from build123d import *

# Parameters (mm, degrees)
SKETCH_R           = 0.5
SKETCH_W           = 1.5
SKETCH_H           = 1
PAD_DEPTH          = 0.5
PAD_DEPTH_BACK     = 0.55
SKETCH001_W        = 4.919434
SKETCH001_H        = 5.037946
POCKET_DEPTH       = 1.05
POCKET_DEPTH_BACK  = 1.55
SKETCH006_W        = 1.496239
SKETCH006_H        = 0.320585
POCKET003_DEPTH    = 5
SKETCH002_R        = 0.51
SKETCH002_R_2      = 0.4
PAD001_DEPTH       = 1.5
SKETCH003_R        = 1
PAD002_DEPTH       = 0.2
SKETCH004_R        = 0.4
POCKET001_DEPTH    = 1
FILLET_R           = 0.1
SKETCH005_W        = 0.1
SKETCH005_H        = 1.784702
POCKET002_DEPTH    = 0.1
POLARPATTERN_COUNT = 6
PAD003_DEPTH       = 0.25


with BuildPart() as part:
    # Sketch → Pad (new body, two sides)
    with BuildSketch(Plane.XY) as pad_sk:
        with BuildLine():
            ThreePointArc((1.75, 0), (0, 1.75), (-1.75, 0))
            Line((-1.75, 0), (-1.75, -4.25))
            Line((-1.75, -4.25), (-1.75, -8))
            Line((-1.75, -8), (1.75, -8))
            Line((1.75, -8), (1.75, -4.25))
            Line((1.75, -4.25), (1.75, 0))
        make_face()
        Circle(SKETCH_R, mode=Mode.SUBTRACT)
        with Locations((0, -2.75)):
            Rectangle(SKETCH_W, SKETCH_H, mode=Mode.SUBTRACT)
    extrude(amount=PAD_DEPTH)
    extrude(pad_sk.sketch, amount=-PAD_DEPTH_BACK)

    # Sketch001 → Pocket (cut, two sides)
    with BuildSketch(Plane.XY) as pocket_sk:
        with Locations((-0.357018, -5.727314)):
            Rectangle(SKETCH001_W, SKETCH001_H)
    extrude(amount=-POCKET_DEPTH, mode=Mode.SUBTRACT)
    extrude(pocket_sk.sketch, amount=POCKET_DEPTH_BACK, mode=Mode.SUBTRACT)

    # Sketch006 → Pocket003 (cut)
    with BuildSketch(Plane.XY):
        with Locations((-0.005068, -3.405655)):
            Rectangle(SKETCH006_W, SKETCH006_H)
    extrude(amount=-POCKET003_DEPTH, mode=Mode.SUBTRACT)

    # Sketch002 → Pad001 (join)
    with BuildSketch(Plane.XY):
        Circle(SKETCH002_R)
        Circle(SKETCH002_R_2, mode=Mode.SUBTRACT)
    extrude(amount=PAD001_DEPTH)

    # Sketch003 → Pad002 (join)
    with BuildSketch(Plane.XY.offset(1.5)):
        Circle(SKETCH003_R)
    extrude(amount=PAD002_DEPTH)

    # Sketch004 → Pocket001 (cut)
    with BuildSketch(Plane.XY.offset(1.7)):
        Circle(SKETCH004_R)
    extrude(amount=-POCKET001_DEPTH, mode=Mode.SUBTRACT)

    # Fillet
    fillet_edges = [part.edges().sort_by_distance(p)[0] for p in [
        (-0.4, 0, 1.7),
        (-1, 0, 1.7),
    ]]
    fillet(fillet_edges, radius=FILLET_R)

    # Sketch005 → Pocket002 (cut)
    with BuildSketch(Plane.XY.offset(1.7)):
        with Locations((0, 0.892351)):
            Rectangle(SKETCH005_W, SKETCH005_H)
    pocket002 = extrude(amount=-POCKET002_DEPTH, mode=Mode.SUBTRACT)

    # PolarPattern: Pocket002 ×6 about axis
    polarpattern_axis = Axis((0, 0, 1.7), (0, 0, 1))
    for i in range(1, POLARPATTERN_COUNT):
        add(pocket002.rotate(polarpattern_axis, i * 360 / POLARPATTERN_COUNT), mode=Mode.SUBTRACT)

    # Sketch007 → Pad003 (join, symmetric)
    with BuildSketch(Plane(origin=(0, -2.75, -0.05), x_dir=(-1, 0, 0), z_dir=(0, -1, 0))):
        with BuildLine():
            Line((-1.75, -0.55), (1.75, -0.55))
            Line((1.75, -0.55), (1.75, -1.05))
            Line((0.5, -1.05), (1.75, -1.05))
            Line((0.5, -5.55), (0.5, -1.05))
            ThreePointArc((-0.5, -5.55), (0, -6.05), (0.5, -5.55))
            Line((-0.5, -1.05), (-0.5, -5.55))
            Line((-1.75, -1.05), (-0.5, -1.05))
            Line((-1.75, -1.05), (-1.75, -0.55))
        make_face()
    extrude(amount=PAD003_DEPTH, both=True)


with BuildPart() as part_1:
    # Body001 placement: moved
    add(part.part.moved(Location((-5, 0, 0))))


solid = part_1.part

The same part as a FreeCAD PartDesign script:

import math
import FreeCAD as App
import Part
import Sketcher
Q = App.Units.Quantity


def edges_at(feature, points):
    """Names of the edges that pass closest to the given points."""
    edges = feature.Shape.Edges
    near = lambda p: min(range(len(edges)), key=lambda i: edges[i].distToShape(Part.Vertex(*p))[0])
    return sorted({f"Edge{near(p) + 1}" for p in points})


def add_polygon(sketch, points):
    """Adds a closed chain of lines whose ends are joined by coincident constraints."""
    first, n = sketch.GeometryCount, len(points)
    for a, b in zip(points, points[1:] + points[:1]):
        sketch.addGeometry(Part.LineSegment(App.Vector(*a, 0), App.Vector(*b, 0)), False)
    for i in range(n):
        sketch.addConstraint(Sketcher.Constraint("Coincident", first + i, 2, first + (i + 1) % n, 1))

doc = App.newDocument("Part")
body = doc.addObject("PartDesign::Body", "Body")

# Sketch on XY plane
sketch1 = body.newObject("Sketcher::SketchObject", "Sketch")
sketch1.AttachmentSupport = (doc.getObject("XY_Plane"), [""])
sketch1.MapMode = "FlatFace"
sketch1.addGeometry(Part.ArcOfCircle(Part.Circle(App.Vector(0, 0, 0), App.Vector(0, 0, 1), 1.8), math.radians(0), math.radians(180)), False)  # 0
sketch1.addGeometry(Part.LineSegment(App.Vector(-1.8, 0, 0), App.Vector(-1.8, -8, 0)), False)  # 1
sketch1.addGeometry(Part.LineSegment(App.Vector(-1.8, -8, 0), App.Vector(1.8, -8, 0)), False)  # 2
sketch1.addGeometry(Part.LineSegment(App.Vector(1.8, -8, 0), App.Vector(1.8, 0, 0)), False)  # 3
add_polygon(sketch1, [(0.8, -3.2), (-0.8, -3.2), (-0.8, -2.2), (0.8, -2.2)])  # lines 4-7
sketch1.addGeometry(Part.Circle(App.Vector(0, 0, 0), App.Vector(0, 0, 1), 0.5), False)  # 8
sketch1.addConstraint([
    Sketcher.Constraint("Tangent", 0, 2, 1, 1),
    Sketcher.Constraint("Coincident", 1, 2, 2, 1),
    Sketcher.Constraint("Coincident", 2, 2, 3, 1),
    Sketcher.Constraint("Tangent", 3, 2, 0, 1),
    Sketcher.Constraint("Vertical", 1),
    Sketcher.Constraint("Horizontal", 2),
    Sketcher.Constraint("Vertical", 3),
    Sketcher.Constraint("Horizontal", 4),
    Sketcher.Constraint("Vertical", 5),
    Sketcher.Constraint("Horizontal", 6),
    Sketcher.Constraint("Vertical", 7),
    Sketcher.Constraint("Coincident", 0, 3, -1, 1),
    Sketcher.Constraint("Coincident", 8, 3, -1, 1),
    Sketcher.Constraint("Diameter", 8, Q("1 mm")),
    Sketcher.Constraint("DistanceY", 1, 2, 1, 1, Q("8 mm")),
    Sketcher.Constraint("DistanceY", 5, 1, 5, 2, Q("1 mm")),
    Sketcher.Constraint("Radius", 0, Q("1.75 mm")),
    Sketcher.Constraint("DistanceX", 4, 2, 4, 1, Q("1.5 mm")),
    Sketcher.Constraint("DistanceX", 0, 2, 4, 2, Q("1 mm")),
    Sketcher.Constraint("DistanceY", 4, 2, -1, 1, Q("3.25 mm")),
])
pad1 = body.newObject("PartDesign::Pad", "Pad")
pad1.Profile = sketch1
pad1.Type = "TwoLengths"
pad1.Length = 0.5
pad1.Length2 = 0.55

# Sketch on XY plane
sketch2 = body.newObject("Sketcher::SketchObject", "Sketch001")
sketch2.AttachmentSupport = (doc.getObject("XY_Plane"), [""])
sketch2.MapMode = "FlatFace"
add_polygon(sketch2, [(-2.8, -3.2), (-2.8, -8.2), (2.1, -8.2), (2.1, -3.2)])  # lines 0-3
sketch2.addConstraint([
    Sketcher.Constraint("Vertical", 0),
    Sketcher.Constraint("Horizontal", 1),
    Sketcher.Constraint("Vertical", 2),
    Sketcher.Constraint("Horizontal", 3),
    Sketcher.Constraint("DistanceX", -1, 1, 1, 2, Q("2.102699 mm")),
    Sketcher.Constraint("DistanceX", 1, 1, 1, 2, Q("4.919434 mm")),
    Sketcher.Constraint("DistanceY", 0, 2, 0, 1, Q("5.037946 mm")),
    Sketcher.Constraint("DistanceY", 2, 2, -1, 1, Q("3.208341 mm")),
])
pocket1 = body.newObject("PartDesign::Pocket", "Pocket")
pocket1.Profile = sketch2
pocket1.Type = "ThroughAll"
pocket1.Midplane = True

# Sketch on XY plane
sketch3 = body.newObject("Sketcher::SketchObject", "Sketch002")
sketch3.AttachmentSupport = (doc.getObject("XY_Plane"), [""])
sketch3.MapMode = "FlatFace"
add_polygon(sketch3, [(-0.75, -3.25), (-0.75, -3.57), (0.74, -3.57), (0.74, -3.25)])  # lines 0-3
sketch3.addConstraint([
    Sketcher.Constraint("Vertical", 0),
    Sketcher.Constraint("Horizontal", 1),
    Sketcher.Constraint("Vertical", 2),
    Sketcher.Constraint("Horizontal", 3),
    Sketcher.Constraint("DistanceX", 1, 1, 1, 2, Q("1.496239 mm")),
    Sketcher.Constraint("DistanceY", 0, 2, 0, 1, Q("0.320585 mm")),
    Sketcher.Constraint("DistanceX", -1, 1, 1, 2, Q("0.743051 mm")),
    Sketcher.Constraint("DistanceY", 0, 2, -1, 1, Q("3.565948 mm")),
])
pocket2 = body.newObject("PartDesign::Pocket", "Pocket001")
pocket2.Profile = sketch3
pocket2.Length = 5

# Sketch on XY plane
sketch4 = body.newObject("Sketcher::SketchObject", "Sketch003")
sketch4.AttachmentSupport = (doc.getObject("XY_Plane"), [""])
sketch4.MapMode = "FlatFace"
sketch4.addGeometry([
    Part.Circle(App.Vector(0, 0, 0), App.Vector(0, 0, 1), 0.51),
    Part.Circle(App.Vector(0, 0, 0), App.Vector(0, 0, 1), 0.4),
], False)
sketch4.addConstraint([
    Sketcher.Constraint("Coincident", 0, 3, -1, 1),
    Sketcher.Constraint("Coincident", 1, 3, -1, 1),
    Sketcher.Constraint("Diameter", 1, Q("0.8 mm")),
    Sketcher.Constraint("Diameter", 0, Q("1.02 mm")),
])
pad2 = body.newObject("PartDesign::Pad", "Pad001")
pad2.Profile = sketch4
pad2.Length = 1.5

# Sketch on XY plane
sketch5 = body.newObject("Sketcher::SketchObject", "Sketch004")
sketch5.AttachmentSupport = (doc.getObject("XY_Plane"), [""])
sketch5.MapMode = "FlatFace"
sketch5.AttachmentOffset = App.Placement(App.Vector(0, 0, 1.5), App.Rotation())
sketch5.addGeometry(Part.Circle(App.Vector(0, 0, 0), App.Vector(0, 0, 1), 1), False)
sketch5.addConstraint([
    Sketcher.Constraint("Coincident", 0, 3, -1, 1),
    Sketcher.Constraint("Diameter", 0, Q("2 mm")),
])
pad3 = body.newObject("PartDesign::Pad", "Pad002")
pad3.Profile = sketch5
pad3.Length = 0.2

# Sketch on XY plane
sketch6 = body.newObject("Sketcher::SketchObject", "Sketch005")
sketch6.AttachmentSupport = (doc.getObject("XY_Plane"), [""])
sketch6.MapMode = "FlatFace"
sketch6.AttachmentOffset = App.Placement(App.Vector(0, 0, 1.7), App.Rotation())
sketch6.addGeometry(Part.Circle(App.Vector(0, 0, 0), App.Vector(0, 0, 1), 0.4), False)
sketch6.addConstraint([
    Sketcher.Constraint("Coincident", 0, 3, -1, 1),
    Sketcher.Constraint("Diameter", 0, Q("0.8 mm")),
])
pocket3 = body.newObject("PartDesign::Pocket", "Pocket002")
pocket3.Profile = sketch6
pocket3.Length = 1
doc.recompute()

fillet = body.newObject("PartDesign::Fillet", "Fillet")
fillet.Base = (pocket3, edges_at(pocket3, [(-0.4, 0, 1.7), (-1, 0, 1.7)]))
fillet.Radius = 0.1

# Sketch on XY plane
sketch7 = body.newObject("Sketcher::SketchObject", "Sketch006")
sketch7.AttachmentSupport = (doc.getObject("XY_Plane"), [""])
sketch7.MapMode = "FlatFace"
sketch7.AttachmentOffset = App.Placement(App.Vector(0, 0, 1.7), App.Rotation())
add_polygon(sketch7, [(-0.05, 1.78), (-0.05, 0), (0.05, 0), (0.05, 1.78)])  # lines 0-3
sketch7.addConstraint([
    Sketcher.Constraint("Vertical", 0),
    Sketcher.Constraint("Horizontal", 1),
    Sketcher.Constraint("Vertical", 2),
    Sketcher.Constraint("Horizontal", 3),
    Sketcher.Constraint("Symmetric", 0, 2, 1, 2, -1, 1),
    Sketcher.Constraint("DistanceX", 1, 1, 1, 2, Q("0.1 mm")),
    Sketcher.Constraint("DistanceY", 0, 2, 0, 1, Q("1.784702 mm")),
])
pocket4 = body.newObject("PartDesign::Pocket", "Pocket003")
pocket4.Profile = sketch7
pocket4.Length = 0.1
doc.recompute()

polarpattern = body.newObject("PartDesign::PolarPattern", "PolarPattern")
polarpattern.Originals = [pocket4]
polarpattern.Axis = (doc.getObject("Z_Axis"), [""])
polarpattern.Angle = 360
polarpattern.Occurrences = 6
body.Tip = polarpattern

# Sketch on XZ plane
sketch8 = body.newObject("Sketcher::SketchObject", "Sketch007")
sketch8.AttachmentSupport = (doc.getObject("XZ_Plane"), [""])
sketch8.MapMode = "FlatFace"
sketch8.AttachmentOffset = App.Placement(App.Vector(0, 0, 2.75), App.Rotation())
sketch8.addGeometry([
    Part.LineSegment(App.Vector(-1.8, 0.5, 0), App.Vector(1.8, 0.5, 0)),  # 0
    Part.LineSegment(App.Vector(1.8, 0.5, 0), App.Vector(1.8, 1, 0)),  # 1
    Part.LineSegment(App.Vector(1.8, 1, 0), App.Vector(0.5, 1, 0)),  # 2
    Part.LineSegment(App.Vector(0.5, 1, 0), App.Vector(0.5, 5.5, 0)),  # 3
    Part.ArcOfCircle(Part.Circle(App.Vector(0, 5.5, 0), App.Vector(0, 0, 1), 0.5), math.radians(0), math.radians(180)),  # 4
    Part.LineSegment(App.Vector(-0.5, 5.5, 0), App.Vector(-0.5, 1, 0)),  # 5
    Part.LineSegment(App.Vector(-0.5, 1, 0), App.Vector(-1.8, 1, 0)),  # 6
    Part.LineSegment(App.Vector(-1.8, 1, 0), App.Vector(-1.8, 0.5, 0)),  # 7
], False)
sketch8.addConstraint([
    Sketcher.Constraint("Coincident", 0, 2, 1, 1),
    Sketcher.Constraint("Coincident", 1, 2, 2, 1),
    Sketcher.Constraint("Coincident", 2, 2, 3, 1),
    Sketcher.Constraint("Tangent", 3, 2, 4, 1),
    Sketcher.Constraint("Tangent", 4, 2, 5, 1),
    Sketcher.Constraint("Coincident", 5, 2, 6, 1),
    Sketcher.Constraint("Coincident", 6, 2, 7, 1),
    Sketcher.Constraint("Coincident", 7, 2, 0, 1),
    Sketcher.Constraint("Horizontal", 0),
    Sketcher.Constraint("Vertical", 1),
    Sketcher.Constraint("Horizontal", 2),
    Sketcher.Constraint("Vertical", 3),
    Sketcher.Constraint("Vertical", 5),
    Sketcher.Constraint("Horizontal", 6),
    Sketcher.Constraint("Vertical", 7),
    Sketcher.Constraint("Symmetric", 2, 2, 5, 2, -2),
    Sketcher.Constraint("Equal", 2, 6),
    Sketcher.Constraint("Radius", 4, Q("0.5 mm")),
    Sketcher.Constraint("DistanceX", 0, 1, 0, 2, Q("3.5 mm")),
    Sketcher.Constraint("DistanceY", 1, 1, 1, 2, Q("0.5 mm")),
    Sketcher.Constraint("DistanceY", 3, 1, 3, 2, Q("4.5 mm")),
    Sketcher.Constraint("DistanceY", -1, 1, 1, 2, Q("1 mm")),
])
pad4 = body.newObject("PartDesign::Pad", "Pad003")
pad4.Profile = sketch8
pad4.Length = 0.5
pad4.Midplane = True
body2 = doc.addObject("PartDesign::Body", "Body001")
doc.recompute()

body.Placement = App.Placement(App.Vector(-5, 0, 0), App.Rotation(App.Vector(0, 0, 1), 0))
boolean = body2.newObject("PartDesign::Boolean", "Boolean")
boolean.Type = "Fuse"
boolean.addObjects([body])

doc.recompute()
